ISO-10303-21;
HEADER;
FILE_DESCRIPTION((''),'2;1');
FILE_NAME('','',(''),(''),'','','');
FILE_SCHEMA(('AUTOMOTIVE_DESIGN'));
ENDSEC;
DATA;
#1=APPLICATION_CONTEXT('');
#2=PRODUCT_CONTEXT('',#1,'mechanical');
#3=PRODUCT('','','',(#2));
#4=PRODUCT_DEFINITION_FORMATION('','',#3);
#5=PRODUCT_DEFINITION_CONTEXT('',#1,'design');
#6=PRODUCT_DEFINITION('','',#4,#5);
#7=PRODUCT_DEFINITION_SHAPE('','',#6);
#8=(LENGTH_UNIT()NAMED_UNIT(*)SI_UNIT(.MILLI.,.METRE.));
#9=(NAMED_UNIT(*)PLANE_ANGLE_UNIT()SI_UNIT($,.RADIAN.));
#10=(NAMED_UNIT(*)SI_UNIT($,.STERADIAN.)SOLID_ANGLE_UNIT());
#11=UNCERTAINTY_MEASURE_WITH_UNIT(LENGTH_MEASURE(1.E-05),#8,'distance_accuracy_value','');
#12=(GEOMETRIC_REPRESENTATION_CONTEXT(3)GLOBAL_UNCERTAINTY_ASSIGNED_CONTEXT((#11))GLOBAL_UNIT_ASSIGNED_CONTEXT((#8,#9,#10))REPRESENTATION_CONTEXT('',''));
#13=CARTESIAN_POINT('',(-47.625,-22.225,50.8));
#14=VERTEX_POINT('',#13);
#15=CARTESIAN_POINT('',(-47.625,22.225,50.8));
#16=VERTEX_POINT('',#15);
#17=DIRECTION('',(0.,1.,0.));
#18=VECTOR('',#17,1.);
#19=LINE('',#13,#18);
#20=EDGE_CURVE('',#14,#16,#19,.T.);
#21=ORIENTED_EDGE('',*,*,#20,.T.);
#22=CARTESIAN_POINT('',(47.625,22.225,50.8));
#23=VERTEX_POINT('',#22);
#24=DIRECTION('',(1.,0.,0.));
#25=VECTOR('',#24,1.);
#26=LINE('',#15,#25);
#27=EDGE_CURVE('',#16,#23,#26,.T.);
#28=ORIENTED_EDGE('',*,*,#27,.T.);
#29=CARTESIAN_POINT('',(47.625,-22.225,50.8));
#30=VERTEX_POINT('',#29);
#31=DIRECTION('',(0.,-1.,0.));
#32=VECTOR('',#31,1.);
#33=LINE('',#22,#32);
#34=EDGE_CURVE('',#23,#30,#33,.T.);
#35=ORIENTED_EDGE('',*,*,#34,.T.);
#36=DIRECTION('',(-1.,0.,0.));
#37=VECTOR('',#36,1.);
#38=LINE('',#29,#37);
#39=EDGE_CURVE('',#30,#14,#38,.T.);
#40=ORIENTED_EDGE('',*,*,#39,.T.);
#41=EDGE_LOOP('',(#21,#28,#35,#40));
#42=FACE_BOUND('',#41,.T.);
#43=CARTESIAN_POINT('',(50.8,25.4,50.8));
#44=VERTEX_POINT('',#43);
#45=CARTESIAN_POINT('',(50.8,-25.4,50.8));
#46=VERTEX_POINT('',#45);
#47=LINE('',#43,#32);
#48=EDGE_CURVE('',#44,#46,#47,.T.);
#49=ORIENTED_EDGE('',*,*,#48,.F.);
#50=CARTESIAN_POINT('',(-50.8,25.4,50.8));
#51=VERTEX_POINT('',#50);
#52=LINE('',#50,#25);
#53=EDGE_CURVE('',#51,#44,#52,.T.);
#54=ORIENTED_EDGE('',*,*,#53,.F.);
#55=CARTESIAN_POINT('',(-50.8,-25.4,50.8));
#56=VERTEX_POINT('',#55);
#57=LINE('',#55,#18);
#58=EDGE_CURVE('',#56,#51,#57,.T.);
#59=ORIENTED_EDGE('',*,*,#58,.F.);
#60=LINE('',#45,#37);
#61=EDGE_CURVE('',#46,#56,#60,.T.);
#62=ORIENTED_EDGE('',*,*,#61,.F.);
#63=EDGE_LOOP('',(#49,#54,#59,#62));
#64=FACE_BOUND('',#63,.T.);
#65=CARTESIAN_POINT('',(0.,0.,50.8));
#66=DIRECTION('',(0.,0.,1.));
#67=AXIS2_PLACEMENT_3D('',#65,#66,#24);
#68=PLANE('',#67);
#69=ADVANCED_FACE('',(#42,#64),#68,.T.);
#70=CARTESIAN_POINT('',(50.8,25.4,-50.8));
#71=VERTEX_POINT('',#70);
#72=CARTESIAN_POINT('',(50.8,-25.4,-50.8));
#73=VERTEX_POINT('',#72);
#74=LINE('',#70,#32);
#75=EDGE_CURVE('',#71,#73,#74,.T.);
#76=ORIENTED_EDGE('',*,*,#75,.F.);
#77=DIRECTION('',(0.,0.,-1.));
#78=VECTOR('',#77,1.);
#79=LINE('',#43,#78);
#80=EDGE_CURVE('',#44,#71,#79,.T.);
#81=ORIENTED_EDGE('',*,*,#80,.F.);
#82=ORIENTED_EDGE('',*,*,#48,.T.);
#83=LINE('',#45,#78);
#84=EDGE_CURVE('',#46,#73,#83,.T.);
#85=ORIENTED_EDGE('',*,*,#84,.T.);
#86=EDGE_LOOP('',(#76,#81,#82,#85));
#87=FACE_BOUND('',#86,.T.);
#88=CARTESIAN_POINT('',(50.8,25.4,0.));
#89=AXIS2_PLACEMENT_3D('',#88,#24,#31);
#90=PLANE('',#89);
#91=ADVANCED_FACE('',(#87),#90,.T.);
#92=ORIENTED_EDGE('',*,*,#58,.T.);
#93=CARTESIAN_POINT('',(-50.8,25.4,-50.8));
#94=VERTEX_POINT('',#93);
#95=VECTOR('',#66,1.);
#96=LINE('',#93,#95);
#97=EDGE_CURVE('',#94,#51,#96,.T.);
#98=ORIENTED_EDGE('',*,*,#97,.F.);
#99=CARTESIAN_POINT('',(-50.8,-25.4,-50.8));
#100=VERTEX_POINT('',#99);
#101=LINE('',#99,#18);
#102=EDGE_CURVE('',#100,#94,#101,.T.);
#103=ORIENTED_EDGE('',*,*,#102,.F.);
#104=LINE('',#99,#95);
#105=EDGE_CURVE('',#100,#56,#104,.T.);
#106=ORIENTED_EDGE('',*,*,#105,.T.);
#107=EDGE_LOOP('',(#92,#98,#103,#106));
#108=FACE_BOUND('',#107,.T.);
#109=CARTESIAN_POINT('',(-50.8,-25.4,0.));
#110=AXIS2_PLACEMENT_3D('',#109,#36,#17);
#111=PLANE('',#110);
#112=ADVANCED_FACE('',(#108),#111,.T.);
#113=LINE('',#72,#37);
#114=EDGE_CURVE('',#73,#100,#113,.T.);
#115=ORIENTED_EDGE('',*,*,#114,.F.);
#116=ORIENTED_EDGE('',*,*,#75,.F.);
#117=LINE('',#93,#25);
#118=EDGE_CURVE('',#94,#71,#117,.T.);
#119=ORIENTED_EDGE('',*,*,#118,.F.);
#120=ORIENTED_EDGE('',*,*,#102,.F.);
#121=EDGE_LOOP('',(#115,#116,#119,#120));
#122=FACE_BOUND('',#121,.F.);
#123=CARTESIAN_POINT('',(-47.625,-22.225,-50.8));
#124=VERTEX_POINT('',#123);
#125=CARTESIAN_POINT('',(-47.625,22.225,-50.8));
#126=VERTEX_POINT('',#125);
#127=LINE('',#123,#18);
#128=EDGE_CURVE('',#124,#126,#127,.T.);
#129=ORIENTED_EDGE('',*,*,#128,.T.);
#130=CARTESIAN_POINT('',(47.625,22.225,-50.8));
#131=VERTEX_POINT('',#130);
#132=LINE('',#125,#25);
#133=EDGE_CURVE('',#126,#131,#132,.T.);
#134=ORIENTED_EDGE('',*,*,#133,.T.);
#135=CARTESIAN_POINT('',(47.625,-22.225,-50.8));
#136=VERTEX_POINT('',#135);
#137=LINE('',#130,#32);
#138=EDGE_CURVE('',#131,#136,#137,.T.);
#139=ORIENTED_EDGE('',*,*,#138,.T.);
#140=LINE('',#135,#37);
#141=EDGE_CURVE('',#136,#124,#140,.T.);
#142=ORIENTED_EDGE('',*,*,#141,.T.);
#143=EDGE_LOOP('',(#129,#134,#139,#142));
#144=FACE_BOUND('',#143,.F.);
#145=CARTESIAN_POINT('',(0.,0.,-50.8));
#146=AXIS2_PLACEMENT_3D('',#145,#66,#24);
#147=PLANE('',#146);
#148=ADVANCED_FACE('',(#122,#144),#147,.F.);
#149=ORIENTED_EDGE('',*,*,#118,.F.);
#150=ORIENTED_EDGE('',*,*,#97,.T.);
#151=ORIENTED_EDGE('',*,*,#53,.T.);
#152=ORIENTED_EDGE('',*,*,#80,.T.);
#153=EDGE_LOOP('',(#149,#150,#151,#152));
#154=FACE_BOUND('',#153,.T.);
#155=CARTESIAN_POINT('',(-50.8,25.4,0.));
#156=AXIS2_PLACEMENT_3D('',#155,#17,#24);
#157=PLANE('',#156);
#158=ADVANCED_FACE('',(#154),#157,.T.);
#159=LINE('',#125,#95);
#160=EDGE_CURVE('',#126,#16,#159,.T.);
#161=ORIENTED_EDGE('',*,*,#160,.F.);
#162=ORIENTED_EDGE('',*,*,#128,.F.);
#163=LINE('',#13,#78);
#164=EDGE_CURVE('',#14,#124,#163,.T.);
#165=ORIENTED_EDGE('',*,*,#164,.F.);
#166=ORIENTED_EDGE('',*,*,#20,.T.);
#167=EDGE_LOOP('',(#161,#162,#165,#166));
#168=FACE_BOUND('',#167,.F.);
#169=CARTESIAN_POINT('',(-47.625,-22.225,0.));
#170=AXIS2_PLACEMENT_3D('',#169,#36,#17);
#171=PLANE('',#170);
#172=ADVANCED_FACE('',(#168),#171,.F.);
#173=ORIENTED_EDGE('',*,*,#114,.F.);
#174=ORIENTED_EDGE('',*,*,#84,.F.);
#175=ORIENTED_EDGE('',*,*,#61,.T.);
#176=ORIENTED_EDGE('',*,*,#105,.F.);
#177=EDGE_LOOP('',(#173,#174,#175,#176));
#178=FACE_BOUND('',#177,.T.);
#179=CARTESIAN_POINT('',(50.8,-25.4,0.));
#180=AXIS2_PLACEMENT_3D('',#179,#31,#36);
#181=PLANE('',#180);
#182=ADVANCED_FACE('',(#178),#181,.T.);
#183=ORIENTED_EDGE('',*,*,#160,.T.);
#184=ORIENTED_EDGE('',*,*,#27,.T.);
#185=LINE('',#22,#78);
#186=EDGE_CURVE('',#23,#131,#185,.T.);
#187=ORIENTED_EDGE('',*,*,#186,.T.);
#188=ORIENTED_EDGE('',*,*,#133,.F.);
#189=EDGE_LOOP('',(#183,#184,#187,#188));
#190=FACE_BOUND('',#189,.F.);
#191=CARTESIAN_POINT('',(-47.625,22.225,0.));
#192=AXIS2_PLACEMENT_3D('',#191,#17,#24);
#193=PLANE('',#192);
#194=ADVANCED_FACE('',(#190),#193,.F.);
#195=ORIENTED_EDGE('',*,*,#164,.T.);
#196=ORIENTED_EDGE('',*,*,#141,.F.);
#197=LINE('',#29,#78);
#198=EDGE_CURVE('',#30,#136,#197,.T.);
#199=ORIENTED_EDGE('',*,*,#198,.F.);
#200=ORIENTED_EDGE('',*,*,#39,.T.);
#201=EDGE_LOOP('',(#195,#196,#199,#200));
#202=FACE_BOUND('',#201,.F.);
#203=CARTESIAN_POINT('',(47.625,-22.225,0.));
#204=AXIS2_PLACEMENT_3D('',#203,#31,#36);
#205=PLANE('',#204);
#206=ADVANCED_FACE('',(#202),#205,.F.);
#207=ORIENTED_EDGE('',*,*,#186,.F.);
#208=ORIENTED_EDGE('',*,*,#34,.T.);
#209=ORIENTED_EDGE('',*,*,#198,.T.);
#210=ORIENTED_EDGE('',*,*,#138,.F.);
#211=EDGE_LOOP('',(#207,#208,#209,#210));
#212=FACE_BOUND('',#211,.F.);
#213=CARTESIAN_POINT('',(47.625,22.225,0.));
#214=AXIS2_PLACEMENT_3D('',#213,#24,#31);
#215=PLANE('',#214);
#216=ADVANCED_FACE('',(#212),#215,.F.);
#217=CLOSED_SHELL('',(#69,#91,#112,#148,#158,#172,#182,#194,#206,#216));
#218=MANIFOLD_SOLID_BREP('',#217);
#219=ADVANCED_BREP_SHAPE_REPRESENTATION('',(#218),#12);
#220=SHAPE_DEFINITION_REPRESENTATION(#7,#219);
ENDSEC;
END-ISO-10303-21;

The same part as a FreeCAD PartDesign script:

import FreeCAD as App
import Part
import Sketcher

V = App.Vector
Q = App.Units.Quantity

doc = App.newDocument("Part")
body = doc.addObject("PartDesign::Body", "Body")

# Sketch on XY plane
sketch1 = body.newObject("Sketcher::SketchObject", "Sketch")
sketch1.AttachmentSupport = (doc.getObject("XY_Plane"), [""])
sketch1.MapMode = "FlatFace"
sketch1.addGeometry([
    Part.LineSegment(V(51, 25, 0), V(-51, 25, 0)),  # 0
    Part.LineSegment(V(-51, 25, 0), V(-51, -25, 0)),  # 1
    Part.LineSegment(V(-51, -25, 0), V(51, -25, 0)),  # 2
    Part.LineSegment(V(51, -25, 0), V(51, 25, 0)),  # 3
    Part.LineSegment(V(-48, -22, 0), V(-48, 22, 0)),  # 4
    Part.LineSegment(V(-48, 22, 0), V(48, 22, 0)),  # 5
    Part.LineSegment(V(48, 22, 0), V(48, -22, 0)),  # 6
    Part.LineSegment(V(48, -22, 0), V(-48, -22, 0)),  # 7
], False)
sketch1.addConstraint([
    Sketcher.Constraint("Coincident", 0, 2, 1, 1),
    Sketcher.Constraint("Coincident", 1, 2, 2, 1),
    Sketcher.Constraint("Coincident", 2, 2, 3, 1),
    Sketcher.Constraint("Coincident", 3, 2, 0, 1),
    Sketcher.Constraint("Coincident", 4, 2, 5, 1),
    Sketcher.Constraint("Coincident", 5, 2, 6, 1),
    Sketcher.Constraint("Coincident", 6, 2, 7, 1),
    Sketcher.Constraint("Coincident", 7, 2, 4, 1),
    Sketcher.Constraint("Horizontal", 0),
    Sketcher.Constraint("Vertical", 1),
    Sketcher.Constraint("Horizontal", 2),
    Sketcher.Constraint("Vertical", 3),
    Sketcher.Constraint("Vertical", 4),
    Sketcher.Constraint("Horizontal", 5),
    Sketcher.Constraint("Vertical", 6),
    Sketcher.Constraint("Horizontal", 7),
    Sketcher.Constraint("Symmetric", 0, 2, 2, 2, -1, 1),
    Sketcher.Constraint("Symmetric", 4, 2, 6, 2, -1, 1),
    Sketcher.Constraint("DistanceX", 0, 2, 0, 1, Q("4 in")),
    Sketcher.Constraint("DistanceY", 1, 2, 1, 1, Q("2 in")),
    Sketcher.Constraint("DistanceX", 0, 2, 4, 2, Q("0.125 in")),
    Sketcher.Constraint("DistanceY", 4, 2, 0, 2, Q("0.125 in")),
])
pad1 = body.newObject("PartDesign::Pad", "Pad")
pad1.Profile = sketch1
pad1.Length = Q("4 in")
pad1.Midplane = True

doc.recompute()
